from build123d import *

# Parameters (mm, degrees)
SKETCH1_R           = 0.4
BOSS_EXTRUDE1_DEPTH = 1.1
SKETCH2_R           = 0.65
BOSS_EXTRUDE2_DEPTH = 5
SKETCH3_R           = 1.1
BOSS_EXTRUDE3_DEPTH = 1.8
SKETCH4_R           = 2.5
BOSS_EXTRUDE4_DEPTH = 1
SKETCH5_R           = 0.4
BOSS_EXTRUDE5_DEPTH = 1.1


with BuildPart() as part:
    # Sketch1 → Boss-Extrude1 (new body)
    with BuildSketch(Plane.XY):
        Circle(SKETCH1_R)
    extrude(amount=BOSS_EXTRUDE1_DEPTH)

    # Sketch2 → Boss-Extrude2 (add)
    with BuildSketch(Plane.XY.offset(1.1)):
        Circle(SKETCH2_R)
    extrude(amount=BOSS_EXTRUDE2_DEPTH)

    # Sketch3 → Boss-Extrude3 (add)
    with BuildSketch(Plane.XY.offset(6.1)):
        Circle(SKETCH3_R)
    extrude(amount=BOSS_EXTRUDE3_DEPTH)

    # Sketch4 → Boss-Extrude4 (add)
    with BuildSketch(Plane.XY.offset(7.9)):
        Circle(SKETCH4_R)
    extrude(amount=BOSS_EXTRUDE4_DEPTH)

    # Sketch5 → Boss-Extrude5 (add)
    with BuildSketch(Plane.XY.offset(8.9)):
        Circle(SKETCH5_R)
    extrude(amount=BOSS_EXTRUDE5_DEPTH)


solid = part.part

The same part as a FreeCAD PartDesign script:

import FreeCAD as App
import Part
import Sketcher
from FreeCAD import Vector

doc = App.newDocument("Part")
body = doc.addObject("PartDesign::Body", "Body")

# Sketch on XY plane
sketch1 = body.newObject("Sketcher::SketchObject", "Sketch")
sketch1.AttachmentSupport = (doc.getObject("XY_Plane"), [""])
sketch1.MapMode = "FlatFace"
sketch1.addGeometry(Part.Circle(Vector(0, 0, 0), Vector(0, 0, 1), 0.4), False)
sketch1.addConstraint([
    Sketcher.Constraint("Coincident", 0, 3, -1, 1),
    Sketcher.Constraint("Diameter", 0, 0.8),
])
pad1 = body.newObject("PartDesign::Pad", "Pad")
pad1.Profile = sketch1
pad1.Length = 1.1

# Sketch on XY plane
sketch2 = body.newObject("Sketcher::SketchObject", "Sketch001")
sketch2.AttachmentSupport = (doc.getObject("XY_Plane"), [""])
sketch2.MapMode = "FlatFace"
sketch2.AttachmentOffset = App.Placement(Vector(0, 0, 1.1), App.Rotation())
sketch2.addGeometry(Part.Circle(Vector(0, 0, 0), Vector(0, 0, 1), 0.65), False)
sketch2.addConstraint([
    Sketcher.Constraint("Coincident", 0, 3, -1, 1),
    Sketcher.Constraint("Diameter", 0, 1.3),
])
pad2 = body.newObject("PartDesign::Pad", "Pad001")
pad2.Profile = sketch2
pad2.Length = 5

# Sketch on XY plane
sketch3 = body.newObject("Sketcher::SketchObject", "Sketch002")
sketch3.AttachmentSupport = (doc.getObject("XY_Plane"), [""])
sketch3.MapMode = "FlatFace"
sketch3.AttachmentOffset = App.Placement(Vector(0, 0, 6.1), App.Rotation())
sketch3.addGeometry(Part.Circle(Vector(0, 0, 0), Vector(0, 0, 1), 1.1), False)
sketch3.addConstraint([
    Sketcher.Constraint("Coincident", 0, 3, -1, 1),
    Sketcher.Constraint("Diameter", 0, 2.2),
])
pad3 = body.newObject("PartDesign::Pad", "Pad002")
pad3.Profile = sketch3
pad3.Length = 1.8

# Sketch on XY plane
sketch4 = body.newObject("Sketcher::SketchObject", "Sketch003")
sketch4.AttachmentSupport = (doc.getObject("XY_Plane"), [""])
sketch4.MapMode = "FlatFace"
sketch4.AttachmentOffset = App.Placement(Vector(0, 0, 7.9), App.Rotation())
sketch4.addGeometry(Part.Circle(Vector(0, 0, 0), Vector(0, 0, 1), 2.5), False)
sketch4.addConstraint([
    Sketcher.Constraint("Coincident", 0, 3, -1, 1),
    Sketcher.Constraint("Diameter", 0, 5.0),
])
pad4 = body.newObject("PartDesign::Pad", "Pad003")
pad4.Profile = sketch4
pad4.Length = 1

# Sketch on XY plane
sketch5 = body.newObject("Sketcher::SketchObject", "Sketch004")
sketch5.AttachmentSupport = (doc.getObject("XY_Plane"), [""])
sketch5.MapMode = "FlatFace"
sketch5.AttachmentOffset = App.Placement(Vector(0, 0, 8.9), App.Rotation())
sketch5.addGeometry(Part.Circle(Vector(0, 0, 0), Vector(0, 0, 1), 0.4), False)
sketch5.addConstraint([
    Sketcher.Constraint("Coincident", 0, 3, -1, 1),
    Sketcher.Constraint("Diameter", 0, 0.8),
])
pad5 = body.newObject("PartDesign::Pad", "Pad004")
pad5.Profile = sketch5
pad5.Length = 1.1

doc.recompute()
